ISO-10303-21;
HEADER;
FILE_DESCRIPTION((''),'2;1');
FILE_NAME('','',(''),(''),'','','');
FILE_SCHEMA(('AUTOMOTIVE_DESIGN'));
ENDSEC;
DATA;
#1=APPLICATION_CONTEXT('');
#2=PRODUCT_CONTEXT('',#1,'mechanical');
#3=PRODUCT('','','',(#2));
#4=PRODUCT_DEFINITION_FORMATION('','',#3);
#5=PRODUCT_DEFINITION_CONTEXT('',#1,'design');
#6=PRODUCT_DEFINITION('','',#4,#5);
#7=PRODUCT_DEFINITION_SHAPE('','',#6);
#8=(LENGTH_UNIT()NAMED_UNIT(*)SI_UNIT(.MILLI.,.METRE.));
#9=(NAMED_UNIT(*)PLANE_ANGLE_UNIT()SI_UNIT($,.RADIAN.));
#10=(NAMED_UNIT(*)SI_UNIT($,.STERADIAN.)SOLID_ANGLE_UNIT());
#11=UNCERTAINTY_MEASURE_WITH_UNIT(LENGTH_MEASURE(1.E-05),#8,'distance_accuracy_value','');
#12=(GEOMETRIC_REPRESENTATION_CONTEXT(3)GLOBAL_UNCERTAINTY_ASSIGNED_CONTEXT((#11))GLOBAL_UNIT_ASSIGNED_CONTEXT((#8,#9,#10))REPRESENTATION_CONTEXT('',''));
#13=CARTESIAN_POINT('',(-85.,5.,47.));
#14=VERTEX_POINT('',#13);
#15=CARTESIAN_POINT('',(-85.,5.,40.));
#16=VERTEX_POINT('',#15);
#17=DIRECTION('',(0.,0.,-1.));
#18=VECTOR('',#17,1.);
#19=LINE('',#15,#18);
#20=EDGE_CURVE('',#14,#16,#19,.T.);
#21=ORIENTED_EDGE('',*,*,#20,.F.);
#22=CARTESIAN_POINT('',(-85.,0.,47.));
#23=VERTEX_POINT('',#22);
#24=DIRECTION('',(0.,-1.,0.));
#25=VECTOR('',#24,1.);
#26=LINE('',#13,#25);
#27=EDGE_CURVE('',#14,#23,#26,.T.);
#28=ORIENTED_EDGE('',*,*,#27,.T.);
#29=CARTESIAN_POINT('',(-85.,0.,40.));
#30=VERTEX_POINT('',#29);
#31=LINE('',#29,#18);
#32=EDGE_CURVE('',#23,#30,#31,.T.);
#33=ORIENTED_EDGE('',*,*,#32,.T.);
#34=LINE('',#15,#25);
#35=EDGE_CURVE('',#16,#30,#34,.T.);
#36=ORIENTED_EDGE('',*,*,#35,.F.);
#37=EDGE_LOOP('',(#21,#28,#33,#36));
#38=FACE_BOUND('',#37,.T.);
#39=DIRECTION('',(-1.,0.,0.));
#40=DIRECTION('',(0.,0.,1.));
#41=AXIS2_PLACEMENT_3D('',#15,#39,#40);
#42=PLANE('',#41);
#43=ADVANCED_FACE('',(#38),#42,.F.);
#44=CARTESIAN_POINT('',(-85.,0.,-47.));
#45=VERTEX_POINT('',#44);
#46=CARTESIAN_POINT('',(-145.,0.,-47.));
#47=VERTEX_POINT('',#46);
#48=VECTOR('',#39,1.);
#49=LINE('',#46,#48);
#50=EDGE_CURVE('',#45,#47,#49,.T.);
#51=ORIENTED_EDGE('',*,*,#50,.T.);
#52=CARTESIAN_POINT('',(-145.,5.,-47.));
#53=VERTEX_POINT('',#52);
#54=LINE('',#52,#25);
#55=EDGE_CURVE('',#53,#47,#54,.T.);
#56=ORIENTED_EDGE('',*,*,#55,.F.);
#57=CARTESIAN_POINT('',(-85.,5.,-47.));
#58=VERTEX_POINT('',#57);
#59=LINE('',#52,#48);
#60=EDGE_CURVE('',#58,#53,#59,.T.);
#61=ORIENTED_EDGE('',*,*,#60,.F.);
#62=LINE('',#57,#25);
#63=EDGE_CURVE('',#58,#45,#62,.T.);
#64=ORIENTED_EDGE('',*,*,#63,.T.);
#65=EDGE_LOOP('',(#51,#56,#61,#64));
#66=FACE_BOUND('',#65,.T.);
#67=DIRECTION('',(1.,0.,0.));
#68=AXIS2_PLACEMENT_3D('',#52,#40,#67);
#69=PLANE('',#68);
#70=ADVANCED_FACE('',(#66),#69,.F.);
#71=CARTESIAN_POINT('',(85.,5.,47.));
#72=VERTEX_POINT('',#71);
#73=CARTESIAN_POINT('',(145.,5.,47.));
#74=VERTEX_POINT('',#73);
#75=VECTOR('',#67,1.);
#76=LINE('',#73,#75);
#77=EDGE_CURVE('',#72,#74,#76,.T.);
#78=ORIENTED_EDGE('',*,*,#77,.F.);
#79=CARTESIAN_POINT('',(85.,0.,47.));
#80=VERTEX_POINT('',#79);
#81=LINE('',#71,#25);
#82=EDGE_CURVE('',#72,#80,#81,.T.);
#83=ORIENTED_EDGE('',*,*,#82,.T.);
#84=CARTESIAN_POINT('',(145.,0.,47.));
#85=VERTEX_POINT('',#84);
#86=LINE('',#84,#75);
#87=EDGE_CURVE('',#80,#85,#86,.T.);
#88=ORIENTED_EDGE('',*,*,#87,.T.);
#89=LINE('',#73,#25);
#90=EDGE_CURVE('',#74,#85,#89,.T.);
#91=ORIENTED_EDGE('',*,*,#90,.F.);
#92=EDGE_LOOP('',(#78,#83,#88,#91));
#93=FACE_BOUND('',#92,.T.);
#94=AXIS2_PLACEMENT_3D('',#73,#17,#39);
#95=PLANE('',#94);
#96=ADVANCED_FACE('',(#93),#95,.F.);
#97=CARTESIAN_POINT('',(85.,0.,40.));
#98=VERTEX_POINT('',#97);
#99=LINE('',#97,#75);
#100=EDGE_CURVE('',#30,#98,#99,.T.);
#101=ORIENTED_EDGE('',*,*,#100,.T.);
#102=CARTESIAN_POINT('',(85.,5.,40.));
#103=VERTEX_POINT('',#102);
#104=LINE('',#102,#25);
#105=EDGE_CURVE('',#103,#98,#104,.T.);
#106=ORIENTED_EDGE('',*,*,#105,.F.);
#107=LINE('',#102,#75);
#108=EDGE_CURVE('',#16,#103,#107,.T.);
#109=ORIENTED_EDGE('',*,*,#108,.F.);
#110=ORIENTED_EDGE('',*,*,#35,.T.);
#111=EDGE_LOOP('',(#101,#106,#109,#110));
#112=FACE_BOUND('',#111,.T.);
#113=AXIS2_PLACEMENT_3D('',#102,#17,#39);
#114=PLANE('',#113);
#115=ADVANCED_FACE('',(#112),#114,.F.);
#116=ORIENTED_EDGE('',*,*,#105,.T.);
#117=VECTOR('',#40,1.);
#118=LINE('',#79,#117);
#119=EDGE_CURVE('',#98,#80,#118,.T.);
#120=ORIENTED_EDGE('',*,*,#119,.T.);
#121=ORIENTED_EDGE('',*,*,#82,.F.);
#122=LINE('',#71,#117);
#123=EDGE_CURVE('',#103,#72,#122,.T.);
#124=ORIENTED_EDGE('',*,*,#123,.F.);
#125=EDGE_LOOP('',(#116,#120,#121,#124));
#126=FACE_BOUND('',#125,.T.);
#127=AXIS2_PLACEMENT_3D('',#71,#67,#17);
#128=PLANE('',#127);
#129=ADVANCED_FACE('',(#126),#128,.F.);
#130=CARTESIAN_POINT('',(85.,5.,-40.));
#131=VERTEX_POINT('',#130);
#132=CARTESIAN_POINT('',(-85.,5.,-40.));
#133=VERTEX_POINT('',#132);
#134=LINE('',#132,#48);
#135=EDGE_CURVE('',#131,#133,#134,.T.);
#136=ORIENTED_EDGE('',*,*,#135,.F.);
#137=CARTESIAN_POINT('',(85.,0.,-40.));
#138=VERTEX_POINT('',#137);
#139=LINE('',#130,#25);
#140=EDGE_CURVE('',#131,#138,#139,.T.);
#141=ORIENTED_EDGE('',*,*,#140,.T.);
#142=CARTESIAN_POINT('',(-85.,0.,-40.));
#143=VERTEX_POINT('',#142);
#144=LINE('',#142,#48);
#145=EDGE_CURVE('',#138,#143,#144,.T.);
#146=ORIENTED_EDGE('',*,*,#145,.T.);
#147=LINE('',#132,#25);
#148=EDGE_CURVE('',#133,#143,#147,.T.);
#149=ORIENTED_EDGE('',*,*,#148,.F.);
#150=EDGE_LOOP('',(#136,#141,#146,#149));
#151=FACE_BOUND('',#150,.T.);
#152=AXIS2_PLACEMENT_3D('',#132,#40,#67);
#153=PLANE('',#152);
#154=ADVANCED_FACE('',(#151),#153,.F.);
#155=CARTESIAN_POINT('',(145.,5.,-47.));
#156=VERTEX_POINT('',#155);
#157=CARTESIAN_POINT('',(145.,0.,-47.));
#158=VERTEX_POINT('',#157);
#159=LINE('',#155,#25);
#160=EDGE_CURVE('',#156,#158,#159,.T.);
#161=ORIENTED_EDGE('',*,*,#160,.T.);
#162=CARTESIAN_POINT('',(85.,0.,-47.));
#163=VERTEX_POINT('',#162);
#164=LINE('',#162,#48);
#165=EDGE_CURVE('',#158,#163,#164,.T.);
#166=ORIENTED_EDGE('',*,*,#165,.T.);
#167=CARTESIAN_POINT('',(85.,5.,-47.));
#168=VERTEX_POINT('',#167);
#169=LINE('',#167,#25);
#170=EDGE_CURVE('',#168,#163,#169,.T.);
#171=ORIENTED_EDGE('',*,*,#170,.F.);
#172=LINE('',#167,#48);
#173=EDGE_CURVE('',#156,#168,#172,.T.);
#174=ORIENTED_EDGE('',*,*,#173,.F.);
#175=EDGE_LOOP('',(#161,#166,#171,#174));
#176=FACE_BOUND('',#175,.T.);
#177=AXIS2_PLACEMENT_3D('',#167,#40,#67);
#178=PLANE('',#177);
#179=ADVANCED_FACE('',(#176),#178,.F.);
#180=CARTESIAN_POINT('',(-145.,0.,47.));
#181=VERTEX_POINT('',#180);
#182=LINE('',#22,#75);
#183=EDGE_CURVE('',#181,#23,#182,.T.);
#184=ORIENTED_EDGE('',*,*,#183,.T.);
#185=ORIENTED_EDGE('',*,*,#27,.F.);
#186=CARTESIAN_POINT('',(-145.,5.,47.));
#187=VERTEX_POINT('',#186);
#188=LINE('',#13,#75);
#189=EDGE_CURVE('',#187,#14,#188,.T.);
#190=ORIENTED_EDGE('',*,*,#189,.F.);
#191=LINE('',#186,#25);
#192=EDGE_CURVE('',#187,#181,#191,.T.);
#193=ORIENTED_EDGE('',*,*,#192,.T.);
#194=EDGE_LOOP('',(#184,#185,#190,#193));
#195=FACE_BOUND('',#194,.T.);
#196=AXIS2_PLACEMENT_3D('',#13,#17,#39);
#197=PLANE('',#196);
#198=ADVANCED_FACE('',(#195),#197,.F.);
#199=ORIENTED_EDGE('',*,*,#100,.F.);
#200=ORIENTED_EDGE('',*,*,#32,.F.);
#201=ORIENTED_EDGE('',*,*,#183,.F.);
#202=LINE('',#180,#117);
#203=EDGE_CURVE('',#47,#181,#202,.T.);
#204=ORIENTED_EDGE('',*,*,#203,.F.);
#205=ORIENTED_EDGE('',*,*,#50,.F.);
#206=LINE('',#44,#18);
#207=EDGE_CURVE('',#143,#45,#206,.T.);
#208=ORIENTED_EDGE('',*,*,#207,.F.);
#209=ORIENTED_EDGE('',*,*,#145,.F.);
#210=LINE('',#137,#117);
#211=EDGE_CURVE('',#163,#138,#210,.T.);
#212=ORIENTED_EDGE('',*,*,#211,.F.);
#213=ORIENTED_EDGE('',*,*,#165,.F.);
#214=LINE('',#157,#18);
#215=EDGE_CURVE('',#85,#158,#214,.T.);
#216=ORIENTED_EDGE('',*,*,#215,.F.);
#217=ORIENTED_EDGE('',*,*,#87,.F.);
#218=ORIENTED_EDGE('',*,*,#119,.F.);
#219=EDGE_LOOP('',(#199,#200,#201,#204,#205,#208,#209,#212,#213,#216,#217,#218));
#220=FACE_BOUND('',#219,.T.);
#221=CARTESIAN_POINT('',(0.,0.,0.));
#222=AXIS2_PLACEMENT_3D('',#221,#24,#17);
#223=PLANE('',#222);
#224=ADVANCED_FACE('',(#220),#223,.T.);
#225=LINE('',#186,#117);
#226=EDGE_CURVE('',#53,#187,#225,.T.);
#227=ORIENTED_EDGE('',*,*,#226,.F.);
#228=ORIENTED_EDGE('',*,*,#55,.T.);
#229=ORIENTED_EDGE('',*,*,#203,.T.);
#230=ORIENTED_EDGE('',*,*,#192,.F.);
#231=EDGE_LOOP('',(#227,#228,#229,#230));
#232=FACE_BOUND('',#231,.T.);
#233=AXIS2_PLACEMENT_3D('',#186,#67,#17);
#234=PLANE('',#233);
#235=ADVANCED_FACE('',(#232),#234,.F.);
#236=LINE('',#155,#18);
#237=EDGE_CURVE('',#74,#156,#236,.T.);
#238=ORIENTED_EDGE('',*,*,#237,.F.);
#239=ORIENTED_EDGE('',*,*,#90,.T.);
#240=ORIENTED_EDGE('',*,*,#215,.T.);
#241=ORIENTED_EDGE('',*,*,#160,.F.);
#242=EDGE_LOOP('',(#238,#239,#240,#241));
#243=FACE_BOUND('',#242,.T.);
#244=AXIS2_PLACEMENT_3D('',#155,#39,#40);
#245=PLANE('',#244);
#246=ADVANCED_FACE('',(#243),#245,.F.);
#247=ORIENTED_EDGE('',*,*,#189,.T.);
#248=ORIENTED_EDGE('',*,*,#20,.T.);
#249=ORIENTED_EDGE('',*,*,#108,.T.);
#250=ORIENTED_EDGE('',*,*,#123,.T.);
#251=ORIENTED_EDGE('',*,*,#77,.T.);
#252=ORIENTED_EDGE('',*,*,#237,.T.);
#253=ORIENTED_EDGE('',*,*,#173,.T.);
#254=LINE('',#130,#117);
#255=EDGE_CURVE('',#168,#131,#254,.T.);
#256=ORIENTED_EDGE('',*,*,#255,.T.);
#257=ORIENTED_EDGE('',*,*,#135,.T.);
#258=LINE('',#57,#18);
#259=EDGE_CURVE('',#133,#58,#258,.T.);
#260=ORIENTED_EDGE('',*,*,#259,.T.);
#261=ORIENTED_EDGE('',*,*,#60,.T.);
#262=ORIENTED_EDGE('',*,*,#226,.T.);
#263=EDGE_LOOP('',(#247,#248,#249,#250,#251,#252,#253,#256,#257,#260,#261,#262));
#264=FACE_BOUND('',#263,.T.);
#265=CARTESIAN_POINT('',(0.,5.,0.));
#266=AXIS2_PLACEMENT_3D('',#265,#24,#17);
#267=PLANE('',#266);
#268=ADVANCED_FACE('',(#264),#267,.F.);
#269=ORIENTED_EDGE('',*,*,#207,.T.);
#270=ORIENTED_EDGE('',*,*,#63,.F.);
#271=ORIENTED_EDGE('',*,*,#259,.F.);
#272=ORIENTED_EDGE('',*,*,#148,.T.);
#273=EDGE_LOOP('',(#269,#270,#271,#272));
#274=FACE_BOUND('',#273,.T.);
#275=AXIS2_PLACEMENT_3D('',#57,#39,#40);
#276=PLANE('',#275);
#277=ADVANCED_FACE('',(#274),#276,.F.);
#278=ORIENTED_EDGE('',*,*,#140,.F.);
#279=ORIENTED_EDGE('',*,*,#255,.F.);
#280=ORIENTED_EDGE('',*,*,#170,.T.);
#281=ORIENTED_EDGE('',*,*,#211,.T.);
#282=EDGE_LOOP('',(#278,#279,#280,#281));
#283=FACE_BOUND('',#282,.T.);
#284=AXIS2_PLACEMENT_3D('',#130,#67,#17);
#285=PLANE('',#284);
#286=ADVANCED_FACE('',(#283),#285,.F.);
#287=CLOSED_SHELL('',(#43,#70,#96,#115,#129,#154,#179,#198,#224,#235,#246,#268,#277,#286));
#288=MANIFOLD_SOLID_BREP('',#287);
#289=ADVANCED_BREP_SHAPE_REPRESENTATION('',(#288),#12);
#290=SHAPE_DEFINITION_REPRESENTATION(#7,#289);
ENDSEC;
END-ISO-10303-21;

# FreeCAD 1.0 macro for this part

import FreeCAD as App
import Part
import Sketcher

V = App.Vector
Q = App.Units.Quantity


def add_polygon(sketch, points):
    """Adds a closed chain of lines whose ends are joined by coincident constraints."""
    first, n = sketch.GeometryCount, len(points)
    for a, b in zip(points, points[1:] + points[:1]):
        sketch.addGeometry(Part.LineSegment(App.Vector(*a, 0), App.Vector(*b, 0)), False)
    for i in range(n):
        sketch.addConstraint(Sketcher.Constraint("Coincident", first + i, 2, first + (i + 1) % n, 1))

doc = App.newDocument("Part")
params = doc.addObject("Spreadsheet::Sheet", "Params")
for row, (alias, value) in enumerate([
    ("sketch1_width", "60 mm"),
    ("sketch1_width2", "170 mm"),
    ("sketch1_height", "94 mm"),
    ("sketch1_height2", "7 mm"),
    ("pad1_length", "5 mm"),
], start=1):
    params.set(f"A{row}", alias)
    params.set(f"B{row}", "=" + value)
    params.setAlias(f"B{row}", alias)

body = doc.addObject("PartDesign::Body", "Body")

sketch1 = body.newObject("Sketcher::SketchObject", "Sketch")
sketch1.AttachmentSupport = (doc.getObject("XZ_Plane"), [""])
sketch1.MapMode = "FlatFace"
add_polygon(sketch1, [(-85, -47), (-145, -47), (-145, 47), (-85, 47), (-85, 40), (85, 40), (85, 47), (145, 47), (145, -47), (85, -47), (85, -40), (-85, -40)])
sketch1.addConstraint([
    Sketcher.Constraint("Horizontal", 0),
    Sketcher.Constraint("Vertical", 1),
    Sketcher.Constraint("Horizontal", 2),
    Sketcher.Constraint("Vertical", 3),
    Sketcher.Constraint("Horizontal", 4),
    Sketcher.Constraint("Vertical", 5),
    Sketcher.Constraint("Horizontal", 6),
    Sketcher.Constraint("Vertical", 7),
    Sketcher.Constraint("Horizontal", 8),
    Sketcher.Constraint("Vertical", 9),
    Sketcher.Constraint("Horizontal", 10),
    Sketcher.Constraint("Vertical", 11),
    Sketcher.Constraint("Symmetric", 0, 2, 6, 2, -1, 1),
    Sketcher.Constraint("Symmetric", 2, 2, 8, 2, -1, 1),
    Sketcher.Constraint("Symmetric", 4, 2, 10, 2, -1, 1),
    Sketcher.Constraint("Symmetric", 2, 2, 5, 2, -2),
    Sketcher.Constraint("DistanceX", 0, 2, 0, 1, Q("60 mm")),
    Sketcher.Constraint("DistanceX", 4, 1, 4, 2, Q("170 mm")),
    Sketcher.Constraint("DistanceY", 1, 1, 1, 2, Q("94 mm")),
    Sketcher.Constraint("DistanceY", 3, 2, 3, 1, Q("7 mm")),
])
sketch1.setExpression("Constraints[28]", "Params.sketch1_width")
sketch1.setExpression("Constraints[29]", "Params.sketch1_width2")
sketch1.setExpression("Constraints[30]", "Params.sketch1_height")
sketch1.setExpression("Constraints[31]", "Params.sketch1_height2")
pad1 = body.newObject("PartDesign::Pad", "Pad")
pad1.Profile = sketch1
pad1.setExpression("Length", "Params.pad1_length")
pad1.Reversed = True

doc.recompute()
